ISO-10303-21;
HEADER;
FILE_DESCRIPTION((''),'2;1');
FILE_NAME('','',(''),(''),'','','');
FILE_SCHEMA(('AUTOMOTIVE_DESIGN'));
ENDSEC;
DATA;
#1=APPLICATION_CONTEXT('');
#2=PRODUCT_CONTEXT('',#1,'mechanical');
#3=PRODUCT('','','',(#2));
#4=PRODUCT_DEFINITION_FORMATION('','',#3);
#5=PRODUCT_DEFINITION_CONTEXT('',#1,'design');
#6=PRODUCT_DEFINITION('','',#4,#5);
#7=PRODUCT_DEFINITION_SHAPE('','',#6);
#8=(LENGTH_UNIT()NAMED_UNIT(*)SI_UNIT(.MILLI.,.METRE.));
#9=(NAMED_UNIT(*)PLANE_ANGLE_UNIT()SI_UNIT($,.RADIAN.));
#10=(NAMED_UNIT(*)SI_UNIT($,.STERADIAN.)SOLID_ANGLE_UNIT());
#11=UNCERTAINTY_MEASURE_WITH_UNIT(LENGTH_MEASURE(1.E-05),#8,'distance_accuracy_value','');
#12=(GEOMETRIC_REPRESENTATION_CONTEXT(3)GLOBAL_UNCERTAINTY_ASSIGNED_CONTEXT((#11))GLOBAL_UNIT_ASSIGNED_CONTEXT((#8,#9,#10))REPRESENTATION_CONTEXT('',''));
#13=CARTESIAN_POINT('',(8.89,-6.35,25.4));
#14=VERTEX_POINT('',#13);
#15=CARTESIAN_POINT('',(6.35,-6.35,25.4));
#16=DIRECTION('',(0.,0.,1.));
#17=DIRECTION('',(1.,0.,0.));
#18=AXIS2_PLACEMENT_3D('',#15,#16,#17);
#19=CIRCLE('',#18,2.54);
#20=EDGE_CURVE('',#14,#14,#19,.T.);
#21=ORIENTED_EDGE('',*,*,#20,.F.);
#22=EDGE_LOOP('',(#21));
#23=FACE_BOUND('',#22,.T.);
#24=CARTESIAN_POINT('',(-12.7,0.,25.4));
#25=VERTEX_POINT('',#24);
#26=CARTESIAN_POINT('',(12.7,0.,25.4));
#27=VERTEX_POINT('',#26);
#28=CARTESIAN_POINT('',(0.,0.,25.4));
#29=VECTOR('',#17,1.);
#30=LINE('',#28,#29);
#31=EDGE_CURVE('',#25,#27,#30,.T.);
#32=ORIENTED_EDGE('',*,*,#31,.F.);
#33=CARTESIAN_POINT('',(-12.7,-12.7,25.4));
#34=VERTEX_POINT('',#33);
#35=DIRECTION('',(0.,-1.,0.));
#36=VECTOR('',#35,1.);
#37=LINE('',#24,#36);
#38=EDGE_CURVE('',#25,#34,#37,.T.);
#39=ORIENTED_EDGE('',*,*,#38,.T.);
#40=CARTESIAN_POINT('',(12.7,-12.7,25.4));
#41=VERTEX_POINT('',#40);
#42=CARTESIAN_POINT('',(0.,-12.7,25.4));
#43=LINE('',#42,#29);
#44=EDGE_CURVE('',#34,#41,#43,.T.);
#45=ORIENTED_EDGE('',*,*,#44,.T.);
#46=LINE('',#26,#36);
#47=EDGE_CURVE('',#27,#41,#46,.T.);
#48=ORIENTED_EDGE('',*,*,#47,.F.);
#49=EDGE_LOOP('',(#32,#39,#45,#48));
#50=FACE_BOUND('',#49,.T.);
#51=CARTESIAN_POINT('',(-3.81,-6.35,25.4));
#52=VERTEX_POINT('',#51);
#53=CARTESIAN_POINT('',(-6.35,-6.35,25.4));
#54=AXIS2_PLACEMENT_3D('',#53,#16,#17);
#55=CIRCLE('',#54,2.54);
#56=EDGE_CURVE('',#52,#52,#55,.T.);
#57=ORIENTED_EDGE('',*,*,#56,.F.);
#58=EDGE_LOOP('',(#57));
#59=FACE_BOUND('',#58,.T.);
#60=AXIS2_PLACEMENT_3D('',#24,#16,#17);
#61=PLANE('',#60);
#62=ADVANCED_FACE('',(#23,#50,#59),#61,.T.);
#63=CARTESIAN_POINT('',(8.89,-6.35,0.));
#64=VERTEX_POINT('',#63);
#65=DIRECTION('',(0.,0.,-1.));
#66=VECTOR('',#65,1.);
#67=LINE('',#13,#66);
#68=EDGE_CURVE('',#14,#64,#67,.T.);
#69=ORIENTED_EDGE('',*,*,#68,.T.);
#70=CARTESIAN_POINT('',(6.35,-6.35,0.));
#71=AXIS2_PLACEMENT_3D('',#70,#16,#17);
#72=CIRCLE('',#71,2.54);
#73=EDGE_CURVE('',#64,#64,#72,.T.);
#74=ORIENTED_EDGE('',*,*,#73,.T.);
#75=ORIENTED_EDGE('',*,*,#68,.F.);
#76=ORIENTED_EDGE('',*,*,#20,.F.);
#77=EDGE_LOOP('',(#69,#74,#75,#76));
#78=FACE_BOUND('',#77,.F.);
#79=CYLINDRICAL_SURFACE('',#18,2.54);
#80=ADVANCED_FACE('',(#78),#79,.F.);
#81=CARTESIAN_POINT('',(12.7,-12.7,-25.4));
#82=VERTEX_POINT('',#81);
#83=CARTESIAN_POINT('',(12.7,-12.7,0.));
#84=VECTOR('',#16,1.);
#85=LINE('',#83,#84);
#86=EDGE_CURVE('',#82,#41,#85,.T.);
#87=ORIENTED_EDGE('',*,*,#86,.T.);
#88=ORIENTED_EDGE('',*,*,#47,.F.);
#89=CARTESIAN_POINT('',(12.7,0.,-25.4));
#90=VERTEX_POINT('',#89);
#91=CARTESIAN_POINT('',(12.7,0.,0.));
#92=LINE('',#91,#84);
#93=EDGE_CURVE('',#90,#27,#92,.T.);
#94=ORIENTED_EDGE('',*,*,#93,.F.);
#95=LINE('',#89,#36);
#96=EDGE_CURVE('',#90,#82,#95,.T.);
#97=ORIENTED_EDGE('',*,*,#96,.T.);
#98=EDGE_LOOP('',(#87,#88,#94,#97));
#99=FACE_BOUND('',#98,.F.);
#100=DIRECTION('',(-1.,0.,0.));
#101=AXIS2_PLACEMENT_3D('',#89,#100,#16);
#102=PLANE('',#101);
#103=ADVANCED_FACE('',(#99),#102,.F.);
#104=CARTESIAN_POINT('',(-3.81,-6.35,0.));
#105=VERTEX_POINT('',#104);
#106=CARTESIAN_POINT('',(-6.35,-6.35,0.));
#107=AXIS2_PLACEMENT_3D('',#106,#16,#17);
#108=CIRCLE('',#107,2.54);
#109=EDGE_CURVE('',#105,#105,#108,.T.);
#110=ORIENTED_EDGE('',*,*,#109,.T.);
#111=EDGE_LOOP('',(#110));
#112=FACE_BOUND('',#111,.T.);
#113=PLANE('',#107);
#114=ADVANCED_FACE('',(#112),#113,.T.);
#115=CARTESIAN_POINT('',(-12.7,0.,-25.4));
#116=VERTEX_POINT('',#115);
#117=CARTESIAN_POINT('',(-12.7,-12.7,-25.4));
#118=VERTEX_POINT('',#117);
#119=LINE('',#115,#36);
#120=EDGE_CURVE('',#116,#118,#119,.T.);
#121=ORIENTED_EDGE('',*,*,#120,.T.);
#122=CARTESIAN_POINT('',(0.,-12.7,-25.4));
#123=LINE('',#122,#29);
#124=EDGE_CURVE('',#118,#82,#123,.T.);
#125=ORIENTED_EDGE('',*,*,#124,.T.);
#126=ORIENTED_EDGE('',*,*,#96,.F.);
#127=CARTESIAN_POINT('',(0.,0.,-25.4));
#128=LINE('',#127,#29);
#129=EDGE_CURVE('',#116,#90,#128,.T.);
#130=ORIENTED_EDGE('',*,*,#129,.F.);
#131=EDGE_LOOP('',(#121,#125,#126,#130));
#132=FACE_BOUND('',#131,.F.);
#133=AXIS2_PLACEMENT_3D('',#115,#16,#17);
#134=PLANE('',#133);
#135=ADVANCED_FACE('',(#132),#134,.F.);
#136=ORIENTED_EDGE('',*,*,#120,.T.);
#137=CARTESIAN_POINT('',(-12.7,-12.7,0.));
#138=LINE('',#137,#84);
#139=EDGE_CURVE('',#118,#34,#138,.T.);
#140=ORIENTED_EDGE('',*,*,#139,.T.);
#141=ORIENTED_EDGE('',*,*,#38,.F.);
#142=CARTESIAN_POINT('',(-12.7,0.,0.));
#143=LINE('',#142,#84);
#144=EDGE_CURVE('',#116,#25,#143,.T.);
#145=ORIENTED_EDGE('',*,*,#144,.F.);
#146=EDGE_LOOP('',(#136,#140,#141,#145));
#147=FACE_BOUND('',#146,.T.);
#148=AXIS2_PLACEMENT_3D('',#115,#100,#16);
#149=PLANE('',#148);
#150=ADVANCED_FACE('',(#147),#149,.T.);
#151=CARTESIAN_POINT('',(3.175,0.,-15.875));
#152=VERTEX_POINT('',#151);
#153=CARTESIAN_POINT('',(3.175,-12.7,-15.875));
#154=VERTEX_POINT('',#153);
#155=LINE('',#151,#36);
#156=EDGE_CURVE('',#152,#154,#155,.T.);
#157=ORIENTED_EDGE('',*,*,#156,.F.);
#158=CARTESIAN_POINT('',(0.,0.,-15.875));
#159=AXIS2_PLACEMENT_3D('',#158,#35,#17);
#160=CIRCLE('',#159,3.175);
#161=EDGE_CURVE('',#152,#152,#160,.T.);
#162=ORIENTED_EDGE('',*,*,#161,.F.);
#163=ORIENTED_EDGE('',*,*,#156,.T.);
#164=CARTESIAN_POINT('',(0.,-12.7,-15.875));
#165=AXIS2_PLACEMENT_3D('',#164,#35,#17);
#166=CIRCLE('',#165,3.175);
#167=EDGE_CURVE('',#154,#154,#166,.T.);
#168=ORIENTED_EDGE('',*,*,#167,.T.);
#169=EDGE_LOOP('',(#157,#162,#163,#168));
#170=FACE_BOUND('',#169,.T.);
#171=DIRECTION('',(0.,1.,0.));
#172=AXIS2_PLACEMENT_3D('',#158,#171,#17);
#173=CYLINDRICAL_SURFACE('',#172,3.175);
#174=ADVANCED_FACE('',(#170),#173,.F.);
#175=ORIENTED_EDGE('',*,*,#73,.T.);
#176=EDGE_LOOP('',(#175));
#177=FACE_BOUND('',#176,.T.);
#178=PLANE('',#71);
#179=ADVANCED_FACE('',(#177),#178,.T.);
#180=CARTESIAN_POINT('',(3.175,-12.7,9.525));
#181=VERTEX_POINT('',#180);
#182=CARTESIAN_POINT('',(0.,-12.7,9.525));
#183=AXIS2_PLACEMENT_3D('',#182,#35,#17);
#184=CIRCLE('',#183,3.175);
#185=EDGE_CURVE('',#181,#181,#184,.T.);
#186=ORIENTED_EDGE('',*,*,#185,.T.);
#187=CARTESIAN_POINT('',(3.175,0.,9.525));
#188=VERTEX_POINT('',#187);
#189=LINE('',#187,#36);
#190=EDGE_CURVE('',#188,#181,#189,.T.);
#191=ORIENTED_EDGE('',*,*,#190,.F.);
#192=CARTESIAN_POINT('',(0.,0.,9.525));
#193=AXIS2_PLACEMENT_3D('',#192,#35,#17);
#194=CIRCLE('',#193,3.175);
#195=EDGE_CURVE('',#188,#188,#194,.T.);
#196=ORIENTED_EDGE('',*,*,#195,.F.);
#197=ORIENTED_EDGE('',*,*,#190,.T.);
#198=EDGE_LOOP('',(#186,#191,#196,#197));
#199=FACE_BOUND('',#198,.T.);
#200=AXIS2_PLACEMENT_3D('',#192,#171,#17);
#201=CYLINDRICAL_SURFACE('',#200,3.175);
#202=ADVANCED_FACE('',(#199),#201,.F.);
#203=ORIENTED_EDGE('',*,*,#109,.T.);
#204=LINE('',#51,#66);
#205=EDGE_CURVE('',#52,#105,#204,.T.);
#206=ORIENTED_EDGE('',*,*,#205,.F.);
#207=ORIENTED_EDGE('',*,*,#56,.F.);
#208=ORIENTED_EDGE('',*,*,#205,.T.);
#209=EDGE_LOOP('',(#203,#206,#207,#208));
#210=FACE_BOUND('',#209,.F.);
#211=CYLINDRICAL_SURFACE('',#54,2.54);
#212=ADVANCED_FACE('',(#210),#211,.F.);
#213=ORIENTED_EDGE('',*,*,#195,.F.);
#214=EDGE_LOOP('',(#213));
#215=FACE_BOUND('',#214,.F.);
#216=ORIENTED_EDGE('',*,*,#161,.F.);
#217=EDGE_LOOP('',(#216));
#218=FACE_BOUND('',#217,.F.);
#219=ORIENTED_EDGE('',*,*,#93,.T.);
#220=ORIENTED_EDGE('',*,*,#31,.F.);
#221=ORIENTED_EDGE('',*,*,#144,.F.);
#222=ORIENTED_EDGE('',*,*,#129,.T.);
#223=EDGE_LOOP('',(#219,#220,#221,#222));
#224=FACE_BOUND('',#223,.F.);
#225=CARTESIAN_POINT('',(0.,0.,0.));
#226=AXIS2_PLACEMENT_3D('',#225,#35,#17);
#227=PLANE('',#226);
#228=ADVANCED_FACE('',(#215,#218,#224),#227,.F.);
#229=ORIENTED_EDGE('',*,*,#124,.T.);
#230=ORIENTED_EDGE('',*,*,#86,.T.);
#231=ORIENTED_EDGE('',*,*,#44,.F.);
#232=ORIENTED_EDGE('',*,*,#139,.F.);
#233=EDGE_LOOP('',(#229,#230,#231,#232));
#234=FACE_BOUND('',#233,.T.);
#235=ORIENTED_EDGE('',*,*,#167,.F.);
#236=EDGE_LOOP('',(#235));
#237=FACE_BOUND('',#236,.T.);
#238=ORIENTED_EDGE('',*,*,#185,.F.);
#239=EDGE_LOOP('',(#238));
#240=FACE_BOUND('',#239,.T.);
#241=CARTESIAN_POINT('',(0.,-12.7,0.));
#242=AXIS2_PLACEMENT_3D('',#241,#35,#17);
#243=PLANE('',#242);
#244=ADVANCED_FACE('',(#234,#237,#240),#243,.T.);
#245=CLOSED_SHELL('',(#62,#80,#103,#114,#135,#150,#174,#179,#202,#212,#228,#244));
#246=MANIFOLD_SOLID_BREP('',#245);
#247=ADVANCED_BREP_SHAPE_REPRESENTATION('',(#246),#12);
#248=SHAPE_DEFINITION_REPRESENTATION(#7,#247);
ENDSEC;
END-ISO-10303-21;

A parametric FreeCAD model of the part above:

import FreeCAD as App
import Part
import Sketcher
from FreeCAD import Vector
Q = App.Units.Quantity

doc = App.newDocument("Part")
body = doc.addObject("PartDesign::Body", "Body")

sketch1 = doc.addObject("Sketcher::SketchObject", "Sketch")
body.addObject(sketch1)
sketch1.AttachmentSupport = (doc.XZ_Plane, [""])
sketch1.MapMode = "FlatFace"
sketch1.addGeometry([
    Part.LineSegment(Vector(-12.7, 25.4, 0), Vector(-12.7, -25.4, 0)),
    Part.LineSegment(Vector(-12.7, -25.4, 0), Vector(12.7, -25.4, 0)),
    Part.LineSegment(Vector(12.7, -25.4, 0), Vector(12.7, 25.4, 0)),
    Part.LineSegment(Vector(12.7, 25.4, 0), Vector(-12.7, 25.4, 0)),
    Part.Circle(Vector(0, -15.9, 0), Vector(0, 0, 1), 3.2),
    Part.Circle(Vector(0, 9.5, 0), Vector(0, 0, 1), 3.2),
], False)
sketch1.addConstraint([
    Sketcher.Constraint("Coincident", 0, 2, 1, 1),
    Sketcher.Constraint("Coincident", 1, 2, 2, 1),
    Sketcher.Constraint("Coincident", 2, 2, 3, 1),
    Sketcher.Constraint("Coincident", 3, 2, 0, 1),
    Sketcher.Constraint("Vertical", 0),
    Sketcher.Constraint("Horizontal", 1),
    Sketcher.Constraint("Vertical", 2),
    Sketcher.Constraint("Horizontal", 3),
    Sketcher.Constraint("Equal", 4, 5),
    Sketcher.Constraint("Symmetric", 0, 2, 2, 2, -1, 1),
    Sketcher.Constraint("PointOnObject", 4, 3, -2),
    Sketcher.Constraint("PointOnObject", 5, 3, -2),
    Sketcher.Constraint("Diameter", 4, Q("0.25 in")),
    Sketcher.Constraint("DistanceX", 1, 1, 1, 2, Q("1 in")),
    Sketcher.Constraint("DistanceY", 0, 2, 0, 1, Q("2 in")),
    Sketcher.Constraint("DistanceY", 4, 3, 5, 3, Q("1 in")),
    Sketcher.Constraint("DistanceY", 4, 3, -1, 1, Q("0.625 in")),
])
pad1 = doc.addObject("PartDesign::Pad", "Pad")
body.addObject(pad1)
pad1.Profile = sketch1
pad1.Length = Q("0.5 in")

sketch2 = doc.addObject("Sketcher::SketchObject", "Sketch001")
body.addObject(sketch2)
sketch2.AttachmentSupport = (doc.XY_Plane, [""])
sketch2.MapMode = "FlatFace"
sketch2.AttachmentOffset = App.Placement(Vector(0, 0, 1 * 25.4), App.Rotation())
sketch2.addGeometry([
    Part.Circle(Vector(-6.3, -6.3, 0), Vector(0, 0, 1), 2.5),
    Part.Circle(Vector(6.3, -6.3, 0), Vector(0, 0, 1), 2.5),
], False)
sketch2.addConstraint([
    Sketcher.Constraint("Equal", 0, 1),
    Sketcher.Constraint("Symmetric", 0, 3, 1, 3, -2),
    Sketcher.Constraint("Diameter", 0, Q("0.2 in")),
    Sketcher.Constraint("DistanceX", 0, 3, 1, 3, Q("0.5 in")),
    Sketcher.Constraint("DistanceY", 0, 3, -1, 1, Q("0.25 in")),
])
pocket1 = doc.addObject("PartDesign::Pocket", "Pocket")
body.addObject(pocket1)
pocket1.Profile = sketch2
pocket1.Length = Q("1 in")

doc.recompute()
